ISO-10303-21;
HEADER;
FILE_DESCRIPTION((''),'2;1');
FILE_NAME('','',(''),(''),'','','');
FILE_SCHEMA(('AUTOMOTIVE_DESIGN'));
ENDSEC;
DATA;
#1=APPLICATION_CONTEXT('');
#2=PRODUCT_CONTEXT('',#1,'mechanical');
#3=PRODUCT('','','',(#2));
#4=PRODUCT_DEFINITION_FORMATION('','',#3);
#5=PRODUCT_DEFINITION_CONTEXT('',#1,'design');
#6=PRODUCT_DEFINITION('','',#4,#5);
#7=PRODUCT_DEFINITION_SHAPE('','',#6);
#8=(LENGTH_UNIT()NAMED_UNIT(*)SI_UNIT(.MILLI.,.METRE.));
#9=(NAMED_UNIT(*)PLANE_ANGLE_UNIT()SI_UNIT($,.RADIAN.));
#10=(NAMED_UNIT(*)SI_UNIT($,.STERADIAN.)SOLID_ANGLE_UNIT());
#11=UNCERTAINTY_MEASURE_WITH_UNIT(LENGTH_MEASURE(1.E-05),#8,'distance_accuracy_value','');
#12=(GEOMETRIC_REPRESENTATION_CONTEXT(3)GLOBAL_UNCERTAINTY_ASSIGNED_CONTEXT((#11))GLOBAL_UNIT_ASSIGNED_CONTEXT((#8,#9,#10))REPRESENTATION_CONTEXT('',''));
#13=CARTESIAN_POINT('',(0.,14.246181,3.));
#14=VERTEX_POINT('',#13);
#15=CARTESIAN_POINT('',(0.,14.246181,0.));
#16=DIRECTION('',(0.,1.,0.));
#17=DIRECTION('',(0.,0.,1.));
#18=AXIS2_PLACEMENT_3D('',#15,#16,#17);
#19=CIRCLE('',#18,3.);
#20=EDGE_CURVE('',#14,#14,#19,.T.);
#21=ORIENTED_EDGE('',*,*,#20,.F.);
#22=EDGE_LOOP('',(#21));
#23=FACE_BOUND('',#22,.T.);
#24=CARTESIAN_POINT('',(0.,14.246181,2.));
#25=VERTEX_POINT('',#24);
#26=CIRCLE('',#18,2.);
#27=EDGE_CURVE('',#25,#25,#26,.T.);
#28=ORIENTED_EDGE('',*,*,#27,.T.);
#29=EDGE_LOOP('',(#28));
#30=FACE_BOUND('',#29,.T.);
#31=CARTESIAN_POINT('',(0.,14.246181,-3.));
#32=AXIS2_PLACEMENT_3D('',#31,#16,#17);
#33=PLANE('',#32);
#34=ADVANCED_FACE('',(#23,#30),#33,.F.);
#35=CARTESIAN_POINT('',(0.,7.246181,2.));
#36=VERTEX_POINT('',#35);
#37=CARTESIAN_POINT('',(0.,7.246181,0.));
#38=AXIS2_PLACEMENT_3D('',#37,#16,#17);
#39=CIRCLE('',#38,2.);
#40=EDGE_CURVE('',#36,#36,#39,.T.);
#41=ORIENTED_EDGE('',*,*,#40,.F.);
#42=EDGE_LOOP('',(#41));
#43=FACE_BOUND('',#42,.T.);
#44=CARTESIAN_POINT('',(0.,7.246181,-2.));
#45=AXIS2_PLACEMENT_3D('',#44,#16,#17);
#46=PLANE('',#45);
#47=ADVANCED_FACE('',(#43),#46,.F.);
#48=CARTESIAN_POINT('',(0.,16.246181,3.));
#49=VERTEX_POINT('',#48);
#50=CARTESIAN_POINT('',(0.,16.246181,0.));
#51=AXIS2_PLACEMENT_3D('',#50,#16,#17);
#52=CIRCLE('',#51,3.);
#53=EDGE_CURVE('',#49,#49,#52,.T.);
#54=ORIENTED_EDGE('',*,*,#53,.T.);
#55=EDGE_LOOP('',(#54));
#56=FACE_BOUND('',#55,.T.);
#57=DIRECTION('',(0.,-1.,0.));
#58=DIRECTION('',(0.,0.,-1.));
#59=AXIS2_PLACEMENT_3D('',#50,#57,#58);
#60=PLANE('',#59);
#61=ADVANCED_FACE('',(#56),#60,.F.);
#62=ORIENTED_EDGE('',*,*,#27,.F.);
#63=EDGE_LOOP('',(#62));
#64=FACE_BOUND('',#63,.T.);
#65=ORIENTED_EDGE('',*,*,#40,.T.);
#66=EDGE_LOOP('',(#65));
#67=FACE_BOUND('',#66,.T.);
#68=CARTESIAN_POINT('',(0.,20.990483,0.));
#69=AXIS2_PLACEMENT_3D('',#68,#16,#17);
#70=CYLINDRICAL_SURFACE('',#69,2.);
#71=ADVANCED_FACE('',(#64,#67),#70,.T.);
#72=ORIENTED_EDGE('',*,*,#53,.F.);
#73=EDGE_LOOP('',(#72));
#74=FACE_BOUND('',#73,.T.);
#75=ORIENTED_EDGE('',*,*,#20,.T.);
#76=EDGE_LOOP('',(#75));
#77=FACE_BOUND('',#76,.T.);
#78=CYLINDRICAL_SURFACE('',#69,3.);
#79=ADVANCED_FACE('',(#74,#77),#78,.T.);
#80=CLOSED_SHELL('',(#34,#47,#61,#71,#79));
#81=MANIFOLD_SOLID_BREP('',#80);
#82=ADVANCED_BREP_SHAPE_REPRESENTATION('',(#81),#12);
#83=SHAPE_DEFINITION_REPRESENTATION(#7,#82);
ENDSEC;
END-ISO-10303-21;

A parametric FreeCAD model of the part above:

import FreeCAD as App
import Part
import Sketcher
from FreeCAD import Vector

doc = App.newDocument("Part")
body = doc.addObject("PartDesign::Body", "Body")

# Sketch on YZ plane
sketch1 = body.newObject("Sketcher::SketchObject", "Sketch")
sketch1.AttachmentSupport = (doc.getObject("YZ_Plane"), [""])
sketch1.MapMode = "FlatFace"
sketch1.addGeometry([
    Part.LineSegment(Vector(16.2, -3, 0), Vector(16.2, 0, 0)),  # 0
    Part.LineSegment(Vector(16.2, 0, 0), Vector(7.2, 0, 0)),  # 1
    Part.LineSegment(Vector(7.2, 0, 0), Vector(7.2, -2, 0)),  # 2
    Part.LineSegment(Vector(7.2, -2, 0), Vector(14.2, -2, 0)),  # 3
    Part.LineSegment(Vector(14.2, -2, 0), Vector(14.2, -3, 0)),  # 4
    Part.LineSegment(Vector(14.2, -3, 0), Vector(16.2, -3, 0)),  # 5
], False)
sketch1.addConstraint([
    Sketcher.Constraint("Coincident", 0, 2, 1, 1),
    Sketcher.Constraint("Coincident", 1, 2, 2, 1),
    Sketcher.Constraint("Coincident", 2, 2, 3, 1),
    Sketcher.Constraint("Coincident", 3, 2, 4, 1),
    Sketcher.Constraint("Coincident", 4, 2, 5, 1),
    Sketcher.Constraint("Coincident", 5, 2, 0, 1),
    Sketcher.Constraint("Vertical", 0),
    Sketcher.Constraint("Horizontal", 1),
    Sketcher.Constraint("Vertical", 2),
    Sketcher.Constraint("Horizontal", 3),
    Sketcher.Constraint("Vertical", 4),
    Sketcher.Constraint("Horizontal", 5),
    Sketcher.Constraint("PointOnObject", 0, 2, -1),
    Sketcher.Constraint("Equal", 5, 2),
    Sketcher.Constraint("DistanceX", 1, 2, 1, 1, 9.0),
    Sketcher.Constraint("DistanceX", 3, 1, 3, 2, 7.0),
    Sketcher.Constraint("DistanceY", 0, 1, 0, 2, 3.0),
    Sketcher.Constraint("DistanceX", -1, 1, 0, 2, 16.246181),
])
revolution = body.newObject("PartDesign::Revolution", "Revolution")
revolution.Profile = sketch1
revolution.ReferenceAxis = (sketch1, ["H_Axis"])
revolution.Angle = 360

doc.recompute()
